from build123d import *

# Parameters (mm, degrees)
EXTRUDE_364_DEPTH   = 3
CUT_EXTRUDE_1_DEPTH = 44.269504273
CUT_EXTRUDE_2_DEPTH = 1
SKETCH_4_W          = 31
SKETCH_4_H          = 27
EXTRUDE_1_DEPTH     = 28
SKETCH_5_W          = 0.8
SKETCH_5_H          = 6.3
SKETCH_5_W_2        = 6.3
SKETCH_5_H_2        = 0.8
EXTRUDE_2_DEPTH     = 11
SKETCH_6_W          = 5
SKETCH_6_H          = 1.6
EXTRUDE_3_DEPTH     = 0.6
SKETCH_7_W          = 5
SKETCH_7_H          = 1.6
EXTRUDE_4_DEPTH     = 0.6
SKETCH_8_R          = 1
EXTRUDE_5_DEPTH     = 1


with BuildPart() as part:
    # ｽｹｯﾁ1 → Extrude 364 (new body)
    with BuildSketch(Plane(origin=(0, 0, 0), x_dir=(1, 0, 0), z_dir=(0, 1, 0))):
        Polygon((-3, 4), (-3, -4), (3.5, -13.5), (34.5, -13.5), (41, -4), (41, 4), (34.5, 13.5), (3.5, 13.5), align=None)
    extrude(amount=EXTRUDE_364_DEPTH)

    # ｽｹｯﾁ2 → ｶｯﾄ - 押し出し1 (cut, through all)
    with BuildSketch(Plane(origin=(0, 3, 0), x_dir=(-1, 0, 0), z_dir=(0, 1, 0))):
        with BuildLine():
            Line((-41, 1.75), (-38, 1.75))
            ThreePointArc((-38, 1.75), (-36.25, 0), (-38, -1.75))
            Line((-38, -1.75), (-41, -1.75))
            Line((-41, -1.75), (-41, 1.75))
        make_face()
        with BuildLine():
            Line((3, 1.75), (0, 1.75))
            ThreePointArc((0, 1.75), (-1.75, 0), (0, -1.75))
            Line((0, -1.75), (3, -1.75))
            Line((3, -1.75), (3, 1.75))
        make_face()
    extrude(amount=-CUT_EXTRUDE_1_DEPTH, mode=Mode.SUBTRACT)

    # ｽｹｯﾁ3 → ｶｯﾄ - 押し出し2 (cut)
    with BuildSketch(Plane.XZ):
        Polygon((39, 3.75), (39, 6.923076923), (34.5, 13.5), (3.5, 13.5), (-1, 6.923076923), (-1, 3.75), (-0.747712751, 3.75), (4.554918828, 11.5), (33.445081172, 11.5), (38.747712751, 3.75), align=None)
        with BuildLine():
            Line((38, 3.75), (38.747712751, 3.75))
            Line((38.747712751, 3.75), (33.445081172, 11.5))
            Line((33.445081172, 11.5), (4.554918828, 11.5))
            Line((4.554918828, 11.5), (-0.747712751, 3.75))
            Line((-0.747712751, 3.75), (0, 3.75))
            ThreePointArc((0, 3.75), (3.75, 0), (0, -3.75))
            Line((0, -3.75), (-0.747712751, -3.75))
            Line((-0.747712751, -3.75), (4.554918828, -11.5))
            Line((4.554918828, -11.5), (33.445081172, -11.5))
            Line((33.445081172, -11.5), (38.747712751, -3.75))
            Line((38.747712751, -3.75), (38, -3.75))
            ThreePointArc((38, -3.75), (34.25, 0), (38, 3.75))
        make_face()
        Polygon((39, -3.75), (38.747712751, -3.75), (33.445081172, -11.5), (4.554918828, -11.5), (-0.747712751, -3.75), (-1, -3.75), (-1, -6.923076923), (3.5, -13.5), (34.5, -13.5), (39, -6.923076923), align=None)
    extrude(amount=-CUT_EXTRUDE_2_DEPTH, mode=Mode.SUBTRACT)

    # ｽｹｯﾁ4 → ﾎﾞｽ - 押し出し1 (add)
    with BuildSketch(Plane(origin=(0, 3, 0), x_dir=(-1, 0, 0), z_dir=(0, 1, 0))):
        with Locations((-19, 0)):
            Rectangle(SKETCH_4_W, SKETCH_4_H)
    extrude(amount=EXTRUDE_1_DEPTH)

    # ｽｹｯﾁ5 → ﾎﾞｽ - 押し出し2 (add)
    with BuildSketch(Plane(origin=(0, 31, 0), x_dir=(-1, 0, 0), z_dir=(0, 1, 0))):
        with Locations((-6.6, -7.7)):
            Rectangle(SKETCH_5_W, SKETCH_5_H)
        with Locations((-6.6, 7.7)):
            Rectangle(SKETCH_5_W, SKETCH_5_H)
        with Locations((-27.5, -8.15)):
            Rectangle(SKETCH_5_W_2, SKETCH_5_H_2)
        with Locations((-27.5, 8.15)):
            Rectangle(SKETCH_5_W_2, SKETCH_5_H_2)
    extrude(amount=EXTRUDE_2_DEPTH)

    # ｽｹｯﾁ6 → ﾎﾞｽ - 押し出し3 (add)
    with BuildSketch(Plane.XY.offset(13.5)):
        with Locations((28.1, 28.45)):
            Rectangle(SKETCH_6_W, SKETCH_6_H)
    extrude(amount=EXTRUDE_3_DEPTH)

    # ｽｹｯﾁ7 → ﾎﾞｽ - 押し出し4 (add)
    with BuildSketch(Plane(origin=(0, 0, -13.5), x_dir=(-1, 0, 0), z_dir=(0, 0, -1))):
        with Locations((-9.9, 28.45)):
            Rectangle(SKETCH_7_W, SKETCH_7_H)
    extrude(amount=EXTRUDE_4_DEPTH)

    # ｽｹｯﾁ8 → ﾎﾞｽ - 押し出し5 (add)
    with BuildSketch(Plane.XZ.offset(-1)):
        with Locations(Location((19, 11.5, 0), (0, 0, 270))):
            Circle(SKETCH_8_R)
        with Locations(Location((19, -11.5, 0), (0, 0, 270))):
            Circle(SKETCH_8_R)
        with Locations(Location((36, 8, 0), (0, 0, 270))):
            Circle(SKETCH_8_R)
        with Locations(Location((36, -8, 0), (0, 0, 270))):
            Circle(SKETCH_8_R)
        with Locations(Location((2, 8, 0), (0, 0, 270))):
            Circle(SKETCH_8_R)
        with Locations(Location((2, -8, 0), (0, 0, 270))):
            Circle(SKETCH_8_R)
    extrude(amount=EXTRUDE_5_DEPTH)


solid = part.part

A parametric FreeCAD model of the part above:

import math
import FreeCAD as App
import Part
import Sketcher
from FreeCAD import Vector
Q = App.Units.Quantity


def add_polygon(sketch, points):
    """Adds a closed chain of lines whose ends are joined by coincident constraints."""
    first, n = sketch.GeometryCount, len(points)
    for a, b in zip(points, points[1:] + points[:1]):
        sketch.addGeometry(Part.LineSegment(App.Vector(*a, 0), App.Vector(*b, 0)), False)
    for i in range(n):
        sketch.addConstraint(Sketcher.Constraint("Coincident", first + i, 2, first + (i + 1) % n, 1))

doc = App.newDocument("Part")
body = doc.addObject("PartDesign::Body", "Body")

sketch1 = body.newObject("Sketcher::SketchObject", "Sketch")
sketch1.AttachmentSupport = (doc.getObject("XZ_Plane"), [""])
sketch1.MapMode = "FlatFace"
add_polygon(sketch1, [(-3, -4), (-3, 4), (4, 14), (34, 14), (41, 4), (41, -4), (34, -14), (4, -14)])
sketch1.addConstraint([
    Sketcher.Constraint("Vertical", 0),
    Sketcher.Constraint("Horizontal", 2),
    Sketcher.Constraint("Vertical", 4),
    Sketcher.Constraint("Horizontal", 6),
    Sketcher.Constraint("Symmetric", 2, 2, 5, 2, -1),
    Sketcher.Constraint("Parallel", 1, 5),
    Sketcher.Constraint("Parallel", 3, 7),
    Sketcher.Constraint("Horizontal", 0, 2, 3, 2),
    Sketcher.Constraint("Horizontal", 4, 2, 7, 2),
    Sketcher.Constraint("Vertical", 1, 2, 6, 2),
    Sketcher.Constraint("DistanceX", 2, 1, 2, 2, Q("31 mm")),
    Sketcher.Constraint("DistanceY", 0, 1, 0, 2, Q("8 mm")),
    Sketcher.Constraint("DistanceX", 0, 2, -1, 1, Q("3 mm")),
    Sketcher.Constraint("DistanceX", -1, 1, 3, 2, Q("41 mm")),
    Sketcher.Constraint("DistanceY", 5, 2, 2, 2, Q("27 mm")),
])
pad1 = body.newObject("PartDesign::Pad", "Pad")
pad1.Profile = sketch1
pad1.Length = 3
pad1.Reversed = True

sketch2 = body.newObject("Sketcher::SketchObject", "Sketch001")
sketch2.AttachmentSupport = (doc.getObject("XZ_Plane"), [""])
sketch2.MapMode = "FlatFace"
sketch2.AttachmentOffset = App.Placement(Vector(0, 0, -3), App.Rotation())
sketch2.addGeometry([
    Part.LineSegment(Vector(38, 1.8, 0), Vector(41, 1.8, 0)),
    Part.LineSegment(Vector(41, 1.8, 0), Vector(41, -1.8, 0)),
    Part.LineSegment(Vector(41, -1.8, 0), Vector(38, -1.8, 0)),
    Part.ArcOfCircle(Part.Circle(Vector(38, 0, 0), Vector(0, 0, 1), 1.8), math.radians(90), math.radians(270)),
    Part.LineSegment(Vector(-3, 1.8, 0), Vector(0, 1.8, 0)),
    Part.ArcOfCircle(Part.Circle(Vector(0, 0, 0), Vector(0, 0, 1), 1.8), math.radians(-90), math.radians(90)),
    Part.LineSegment(Vector(0, -1.8, 0), Vector(-3, -1.8, 0)),
    Part.LineSegment(Vector(-3, -1.8, 0), Vector(-3, 1.8, 0)),
], False)
sketch2.addConstraint([
    Sketcher.Constraint("Coincident", 0, 2, 1, 1),
    Sketcher.Constraint("Coincident", 1, 2, 2, 1),
    Sketcher.Constraint("Tangent", 2, 2, 3, 2),
    Sketcher.Constraint("Tangent", 3, 1, 0, 1),
    Sketcher.Constraint("Tangent", 4, 2, 5, 2),
    Sketcher.Constraint("Tangent", 5, 1, 6, 1),
    Sketcher.Constraint("Coincident", 6, 2, 7, 1),
    Sketcher.Constraint("Coincident", 7, 2, 4, 1),
    Sketcher.Constraint("Horizontal", 0),
    Sketcher.Constraint("Vertical", 1),
    Sketcher.Constraint("Horizontal", 2),
    Sketcher.Constraint("Horizontal", 4),
    Sketcher.Constraint("Horizontal", 6),
    Sketcher.Constraint("Vertical", 7),
    Sketcher.Constraint("Coincident", 5, 3, -1, 1),
    Sketcher.Constraint("Equal", 3, 5),
    Sketcher.Constraint("PointOnObject", 3, 3, -1),
    Sketcher.Constraint("Equal", 2, 4),
    Sketcher.Constraint("DistanceX", 0, 1, 0, 2, Q("3 mm")),
    Sketcher.Constraint("Radius", 3, Q("1.75 mm")),
    Sketcher.Constraint("DistanceX", -1, 1, 3, 3, Q("38 mm")),
])
pocket1 = body.newObject("PartDesign::Pocket", "Pocket")
pocket1.Profile = sketch2
pocket1.Type = "ThroughAll"
pocket1.Reversed = True

sketch3 = body.newObject("Sketcher::SketchObject", "Sketch002")
sketch3.AttachmentSupport = (doc.getObject("XZ_Plane"), [""])
sketch3.MapMode = "FlatFace"
sketch3.addGeometry([
    Part.LineSegment(Vector(39, 3.8, 0), Vector(39, 6.9, 0)),
    Part.LineSegment(Vector(39, 6.9, 0), Vector(34.5, 13.5, 0)),
    Part.LineSegment(Vector(34.5, 13.5, 0), Vector(3.5, 13.5, 0)),
    Part.LineSegment(Vector(3.5, 13.5, 0), Vector(-1, 6.9, 0)),
    Part.LineSegment(Vector(-1, 6.9, 0), Vector(-1, 3.8, 0)),
    Part.LineSegment(Vector(-1, 3.8, 0), Vector(0, 3.8, 0)),
    Part.ArcOfCircle(Part.Circle(Vector(0, 0, 0), Vector(0, 0, 1), 3.8), math.radians(-90), math.radians(90)),
    Part.LineSegment(Vector(0, -3.8, 0), Vector(-1, -3.8, 0)),
    Part.LineSegment(Vector(-1, -3.8, 0), Vector(-1, -6.9, 0)),
    Part.LineSegment(Vector(-1, -6.9, 0), Vector(3.5, -13.5, 0)),
    Part.LineSegment(Vector(3.5, -13.5, 0), Vector(34.5, -13.5, 0)),
    Part.LineSegment(Vector(34.5, -13.5, 0), Vector(39, -6.9, 0)),
    Part.LineSegment(Vector(39, -6.9, 0), Vector(39, -3.8, 0)),
    Part.LineSegment(Vector(39, -3.8, 0), Vector(38, -3.8, 0)),
    Part.ArcOfCircle(Part.Circle(Vector(38, 0, 0), Vector(0, 0, 1), 3.8), math.radians(90), math.radians(270)),
    Part.LineSegment(Vector(38, 3.8, 0), Vector(39, 3.8, 0)),
], False)
sketch3.addConstraint([
    Sketcher.Constraint("Coincident", 0, 2, 1, 1),
    Sketcher.Constraint("Coincident", 1, 2, 2, 1),
    Sketcher.Constraint("Coincident", 2, 2, 3, 1),
    Sketcher.Constraint("Coincident", 3, 2, 4, 1),
    Sketcher.Constraint("Coincident", 4, 2, 5, 1),
    Sketcher.Constraint("Tangent", 5, 2, 6, 2),
    Sketcher.Constraint("Tangent", 6, 1, 7, 1),
    Sketcher.Constraint("Coincident", 7, 2, 8, 1),
    Sketcher.Constraint("Coincident", 8, 2, 9, 1),
    Sketcher.Constraint("Coincident", 9, 2, 10, 1),
    Sketcher.Constraint("Coincident", 10, 2, 11, 1),
    Sketcher.Constraint("Coincident", 11, 2, 12, 1),
    Sketcher.Constraint("Coincident", 12, 2, 13, 1),
    Sketcher.Constraint("Tangent", 13, 2, 14, 2),
    Sketcher.Constraint("Tangent", 14, 1, 15, 1),
    Sketcher.Constraint("Coincident", 15, 2, 0, 1),
    Sketcher.Constraint("Vertical", 0),
    Sketcher.Constraint("Horizontal", 2),
    Sketcher.Constraint("Vertical", 4),
    Sketcher.Constraint("Horizontal", 5),
    Sketcher.Constraint("Horizontal", 7),
    Sketcher.Constraint("Vertical", 8),
    Sketcher.Constraint("Horizontal", 10),
    Sketcher.Constraint("Vertical", 12),
    Sketcher.Constraint("Horizontal", 13),
    Sketcher.Constraint("Horizontal", 15),
    Sketcher.Constraint("Coincident", 6, 3, -1, 1),
    Sketcher.Constraint("Equal", 6, 14),
    Sketcher.Constraint("Symmetric", 3, 2, 8, 2, -1),
    Sketcher.Constraint("Symmetric", 2, 2, 9, 2, -1),
    Sketcher.Constraint("Symmetric", 0, 2, 11, 2, -1),
    Sketcher.Constraint("PointOnObject", 14, 3, -1),
    Sketcher.Constraint("Parallel", 1, 9),
    Sketcher.Constraint("Parallel", 3, 11),
    Sketcher.Constraint("Horizontal", 0, 2, 3, 2),
    Sketcher.Constraint("Equal", 7, 13),
    Sketcher.Constraint("DistanceX", 2, 2, 2, 1, Q("31 mm")),
    Sketcher.Constraint("DistanceX", 5, 1, 5, 2, Q("1 mm")),
    Sketcher.Constraint("Radius", 6, Q("3.75 mm")),
    Sketcher.Constraint("DistanceX", -1, 1, 14, 3, Q("38 mm")),
    Sketcher.Constraint("DistanceY", 10, 2, 1, 2, Q("27 mm")),
    Sketcher.Constraint("Distance", 1, Q("7.96906 mm")),
])
pocket2 = body.newObject("PartDesign::Pocket", "Pocket001")
pocket2.Profile = sketch3
pocket2.Length = 1

sketch4 = body.newObject("Sketcher::SketchObject", "Sketch003")
sketch4.AttachmentSupport = (doc.getObject("XZ_Plane"), [""])
sketch4.MapMode = "FlatFace"
sketch4.AttachmentOffset = App.Placement(Vector(0, 0, -3), App.Rotation())
add_polygon(sketch4, [(34, 14), (34, -14), (4, -14), (4, 14)])
sketch4.addConstraint([
    Sketcher.Constraint("Vertical", 0),
    Sketcher.Constraint("Horizontal", 1),
    Sketcher.Constraint("Vertical", 2),
    Sketcher.Constraint("Horizontal", 3),
    Sketcher.Constraint("DistanceX", 1, 2, 1, 1, Q("31 mm")),
    Sketcher.Constraint("DistanceY", 0, 2, 0, 1, Q("27 mm")),
    Sketcher.Constraint("DistanceX", -1, 1, 0, 2, Q("34.5 mm")),
    Sketcher.Constraint("DistanceY", 0, 2, -1, 1, Q("13.5 mm")),
])
pad2 = body.newObject("PartDesign::Pad", "Pad001")
pad2.Profile = sketch4
pad2.Length = 28
pad2.Reversed = True

sketch5 = body.newObject("Sketcher::SketchObject", "Sketch004")
sketch5.AttachmentSupport = (doc.getObject("XZ_Plane"), [""])
sketch5.MapMode = "FlatFace"
sketch5.AttachmentOffset = App.Placement(Vector(0, 0, -31), App.Rotation())
add_polygon(sketch5, [(7, -4.5), (7, -10.8), (6.2, -10.8), (6.2, -4.5)])
add_polygon(sketch5, [(7, 10.8), (7, 4.5), (6.2, 4.5), (6.2, 10.8)])
add_polygon(sketch5, [(30.6, -7.8), (30.6, -8.6), (24.4, -8.6), (24.4, -7.8)])
add_polygon(sketch5, [(30.6, 8.6), (30.6, 7.8), (24.4, 7.8), (24.4, 8.6)])
sketch5.addConstraint([
    Sketcher.Constraint("Vertical", 0),
    Sketcher.Constraint("Horizontal", 1),
    Sketcher.Constraint("Vertical", 2),
    Sketcher.Constraint("Horizontal", 3),
    Sketcher.Constraint("Vertical", 4),
    Sketcher.Constraint("Horizontal", 5),
    Sketcher.Constraint("Vertical", 6),
    Sketcher.Constraint("Horizontal", 7),
    Sketcher.Constraint("Vertical", 8),
    Sketcher.Constraint("Horizontal", 9),
    Sketcher.Constraint("Vertical", 10),
    Sketcher.Constraint("Horizontal", 11),
    Sketcher.Constraint("Vertical", 12),
    Sketcher.Constraint("Horizontal", 13),
    Sketcher.Constraint("Vertical", 14),
    Sketcher.Constraint("Horizontal", 15),
    Sketcher.Constraint("Symmetric", 3, 2, 4, 2, -1),
    Sketcher.Constraint("Symmetric", 1, 2, 6, 2, -1),
    Sketcher.Constraint("Symmetric", 11, 2, 12, 2, -1),
    Sketcher.Constraint("Symmetric", 9, 2, 14, 2, -1),
    Sketcher.Constraint("Equal", 15, 0),
    Sketcher.Constraint("Equal", 7, 8),
    Sketcher.Constraint("DistanceX", 1, 2, 1, 1, Q("0.8 mm")),
    Sketcher.Constraint("DistanceX", 9, 2, 9, 1, Q("6.3 mm")),
    Sketcher.Constraint("DistanceX", -1, 1, 0, 2, Q("7 mm")),
    Sketcher.Constraint("DistanceY", 8, 2, 3, 2, Q("4 mm")),
    Sketcher.Constraint("DistanceY", 3, 2, 4, 2, Q("9.1 mm")),
    Sketcher.Constraint("DistanceX", -1, 1, 8, 2, Q("30.65 mm")),
])
pad3 = body.newObject("PartDesign::Pad", "Pad002")
pad3.Profile = sketch5
pad3.Length = 11
pad3.Reversed = True

sketch6 = body.newObject("Sketcher::SketchObject", "Sketch005")
sketch6.AttachmentSupport = (doc.getObject("XY_Plane"), [""])
sketch6.MapMode = "FlatFace"
sketch6.AttachmentOffset = App.Placement(Vector(0, 0, 13.5), App.Rotation())
add_polygon(sketch6, [(25.6, 29.2), (25.6, 27.6), (30.6, 27.6), (30.6, 29.2)])
sketch6.addConstraint([
    Sketcher.Constraint("Vertical", 0),
    Sketcher.Constraint("Horizontal", 1),
    Sketcher.Constraint("Vertical", 2),
    Sketcher.Constraint("Horizontal", 3),
    Sketcher.Constraint("DistanceX", 1, 1, 1, 2, Q("5 mm")),
    Sketcher.Constraint("DistanceY", 0, 2, 0, 1, Q("1.6 mm")),
    Sketcher.Constraint("DistanceX", -1, 1, 0, 2, Q("25.6 mm")),
    Sketcher.Constraint("DistanceY", -1, 1, 0, 2, Q("27.65 mm")),
])
pad4 = body.newObject("PartDesign::Pad", "Pad003")
pad4.Profile = sketch6
pad4.Length = 0.6

sketch7 = body.newObject("Sketcher::SketchObject", "Sketch006")
sketch7.AttachmentSupport = (doc.getObject("XY_Plane"), [""])
sketch7.MapMode = "FlatFace"
sketch7.AttachmentOffset = App.Placement(Vector(0, 0, -13.5), App.Rotation())
add_polygon(sketch7, [(12.4, 29.2), (12.4, 27.6), (7.4, 27.6), (7.4, 29.2)])
sketch7.addConstraint([
    Sketcher.Constraint("Vertical", 0),
    Sketcher.Constraint("Horizontal", 1),
    Sketcher.Constraint("Vertical", 2),
    Sketcher.Constraint("Horizontal", 3),
    Sketcher.Constraint("DistanceX", 1, 2, 1, 1, Q("5 mm")),
    Sketcher.Constraint("DistanceY", 0, 2, 0, 1, Q("1.6 mm")),
    Sketcher.Constraint("DistanceX", -1, 1, 0, 2, Q("12.4 mm")),
    Sketcher.Constraint("DistanceY", -1, 1, 0, 2, Q("27.65 mm")),
])
pad5 = body.newObject("PartDesign::Pad", "Pad004")
pad5.Profile = sketch7
pad5.Length = 0.6
pad5.Reversed = True

sketch8 = body.newObject("Sketcher::SketchObject", "Sketch007")
sketch8.AttachmentSupport = (doc.getObject("XZ_Plane"), [""])
sketch8.MapMode = "FlatFace"
sketch8.AttachmentOffset = App.Placement(Vector(0, 0, -1), App.Rotation())
sketch8.addGeometry([
    Part.Circle(Vector(19, 11.5, 0), Vector(0, 0, 1), 1),
    Part.Circle(Vector(19, -11.5, 0), Vector(0, 0, 1), 1),
    Part.Circle(Vector(36, 8, 0), Vector(0, 0, 1), 1),
    Part.Circle(Vector(36, -8, 0), Vector(0, 0, 1), 1),
    Part.Circle(Vector(2, 8, 0), Vector(0, 0, 1), 1),
    Part.Circle(Vector(2, -8, 0), Vector(0, 0, 1), 1),
], False)
sketch8.addConstraint([
    Sketcher.Constraint("Equal", 0, 1),
    Sketcher.Constraint("Equal", 1, 2),
    Sketcher.Constraint("Equal", 2, 3),
    Sketcher.Constraint("Equal", 3, 4),
    Sketcher.Constraint("Equal", 4, 5),
    Sketcher.Constraint("Symmetric", 0, 3, 1, 3, -1),
    Sketcher.Constraint("Symmetric", 2, 3, 3, 3, -1),
    Sketcher.Constraint("Symmetric", 4, 3, 5, 3, -1),
    Sketcher.Constraint("Horizontal", 2, 3, 4, 3),
    Sketcher.Constraint("Diameter", 0, Q("2 mm")),
    Sketcher.Constraint("DistanceX", -1, 1, 0, 3, Q("19 mm")),
    Sketcher.Constraint("DistanceX", -1, 1, 2, 3, Q("36 mm")),
    Sketcher.Constraint("DistanceY", -1, 1, 2, 3, Q("8 mm")),
    Sketcher.Constraint("DistanceX", -1, 1, 4, 3, Q("2 mm")),
    Sketcher.Constraint("DistanceY", 1, 3, 0, 3, Q("23 mm")),
])
pad6 = body.newObject("PartDesign::Pad", "Pad005")
pad6.Profile = sketch8
pad6.Length = 1

doc.recompute()
